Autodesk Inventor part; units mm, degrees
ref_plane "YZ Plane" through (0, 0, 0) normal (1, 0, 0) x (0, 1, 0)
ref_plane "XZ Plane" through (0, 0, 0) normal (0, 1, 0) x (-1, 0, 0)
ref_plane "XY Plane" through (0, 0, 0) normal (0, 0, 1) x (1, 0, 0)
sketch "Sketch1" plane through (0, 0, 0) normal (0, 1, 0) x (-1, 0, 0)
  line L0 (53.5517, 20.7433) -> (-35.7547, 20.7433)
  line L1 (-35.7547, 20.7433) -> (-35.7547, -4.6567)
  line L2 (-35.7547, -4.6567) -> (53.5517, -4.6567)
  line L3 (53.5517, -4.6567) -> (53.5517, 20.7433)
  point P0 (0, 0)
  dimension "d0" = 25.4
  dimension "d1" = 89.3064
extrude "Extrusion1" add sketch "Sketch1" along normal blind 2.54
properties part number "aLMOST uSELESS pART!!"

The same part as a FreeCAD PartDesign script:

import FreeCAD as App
import Part
import Sketcher
Q = App.Units.Quantity

doc = App.newDocument("Part")
body = doc.addObject("PartDesign::Body", "Body")

sketch1 = doc.addObject("Sketcher::SketchObject", "Sketch")
body.addObject(sketch1)
sketch1.AttachmentSupport = (doc.XZ_Plane, [""])
sketch1.MapMode = "FlatFace"
sketch1.addGeometry([
    Part.LineSegment(App.Vector(-53.5517, -4.6567, 0), App.Vector(-53.5517, 20.7433, 0)),
    Part.LineSegment(App.Vector(-53.5517, 20.7433, 0), App.Vector(35.7547, 20.7433, 0)),
    Part.LineSegment(App.Vector(35.7547, 20.7433, 0), App.Vector(35.7547, -4.6567, 0)),
    Part.LineSegment(App.Vector(35.7547, -4.6567, 0), App.Vector(-53.5517, -4.6567, 0)),
], False)
sketch1.addConstraint([
    Sketcher.Constraint("Coincident", 0, 2, 1, 1),
    Sketcher.Constraint("Coincident", 1, 2, 2, 1),
    Sketcher.Constraint("Coincident", 2, 2, 3, 1),
    Sketcher.Constraint("Coincident", 3, 2, 0, 1),
    Sketcher.Constraint("Vertical", 0),
    Sketcher.Constraint("Horizontal", 1),
    Sketcher.Constraint("Vertical", 2),
    Sketcher.Constraint("Horizontal", 3),
    Sketcher.Constraint("DistanceY", 0, 1, 0, 2, Q("1 in")),
    Sketcher.Constraint("DistanceX", 1, 1, 1, 2, Q("3.516 in")),
    Sketcher.Constraint("DistanceX", 0, 2, -1, 1, 53.5517),
    Sketcher.Constraint("DistanceY", -1, 1, 0, 2, 20.7433),
])
pad1 = doc.addObject("PartDesign::Pad", "Pad")
body.addObject(pad1)
pad1.Profile = sketch1
pad1.Length = Q("0.1 in")
pad1.Reversed = True

doc.recompute()
